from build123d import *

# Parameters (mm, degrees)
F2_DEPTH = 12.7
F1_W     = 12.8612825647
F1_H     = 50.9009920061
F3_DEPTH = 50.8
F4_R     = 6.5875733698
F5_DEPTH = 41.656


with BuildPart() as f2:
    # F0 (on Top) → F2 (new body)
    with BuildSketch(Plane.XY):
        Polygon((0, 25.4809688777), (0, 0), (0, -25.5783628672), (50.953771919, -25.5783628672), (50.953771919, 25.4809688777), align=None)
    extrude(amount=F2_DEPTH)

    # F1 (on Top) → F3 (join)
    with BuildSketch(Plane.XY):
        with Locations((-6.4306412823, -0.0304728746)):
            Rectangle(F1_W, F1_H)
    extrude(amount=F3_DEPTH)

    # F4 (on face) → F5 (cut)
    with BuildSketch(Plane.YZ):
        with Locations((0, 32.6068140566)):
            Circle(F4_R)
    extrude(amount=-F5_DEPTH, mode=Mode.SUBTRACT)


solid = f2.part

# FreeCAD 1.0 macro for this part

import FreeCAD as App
import Part
import Sketcher
from FreeCAD import Vector
Q = App.Units.Quantity


def add_polygon(sketch, points):
    """Adds a closed chain of lines whose ends are joined by coincident constraints."""
    first, n = sketch.GeometryCount, len(points)
    for a, b in zip(points, points[1:] + points[:1]):
        sketch.addGeometry(Part.LineSegment(App.Vector(*a, 0), App.Vector(*b, 0)), False)
    for i in range(n):
        sketch.addConstraint(Sketcher.Constraint("Coincident", first + i, 2, first + (i + 1) % n, 1))

doc = App.newDocument("Part")
body = doc.addObject("PartDesign::Body", "Body")

sketch1 = body.newObject("Sketcher::SketchObject", "Sketch")
sketch1.AttachmentSupport = (doc.getObject("XY_Plane"), [""])
sketch1.MapMode = "FlatFace"
add_polygon(sketch1, [(0, 25.480969), (0, -25.578363), (50.953772, -25.578363), (50.953772, 25.480969)])
sketch1.addConstraint(Sketcher.Constraint("Vertical", 0))
sketch1.addConstraint(Sketcher.Constraint("Horizontal", 1))
sketch1.addConstraint(Sketcher.Constraint("Vertical", 2))
sketch1.addConstraint(Sketcher.Constraint("Horizontal", 3))
sketch1.addConstraint(Sketcher.Constraint("PointOnObject", 0, 2, -2))
sketch1.addConstraint(Sketcher.Constraint("DistanceX", 1, 1, 1, 2, 50.953772))
sketch1.addConstraint(Sketcher.Constraint("DistanceY", 0, 2, 0, 1, 51.059332))
sketch1.addConstraint(Sketcher.Constraint("DistanceY", -1, 1, 2, 2, 25.480969))
pad1 = body.newObject("PartDesign::Pad", "Pad")
pad1.Profile = sketch1
pad1.Length = Q("0.5 in")

sketch2 = body.newObject("Sketcher::SketchObject", "Sketch001")
sketch2.AttachmentSupport = (doc.getObject("XY_Plane"), [""])
sketch2.MapMode = "FlatFace"
add_polygon(sketch2, [(-12.861283, 25.420023), (-12.861283, -25.480969), (0, -25.480969), (0, 25.420023)])
sketch2.addConstraint(Sketcher.Constraint("Vertical", 0))
sketch2.addConstraint(Sketcher.Constraint("Horizontal", 1))
sketch2.addConstraint(Sketcher.Constraint("Vertical", 2))
sketch2.addConstraint(Sketcher.Constraint("Horizontal", 3))
sketch2.addConstraint(Sketcher.Constraint("PointOnObject", 1, 2, -2))
sketch2.addConstraint(Sketcher.Constraint("DistanceX", 1, 1, 1, 2, 12.861283))
sketch2.addConstraint(Sketcher.Constraint("DistanceY", 0, 2, 0, 1, 50.900992))
sketch2.addConstraint(Sketcher.Constraint("DistanceY", 0, 2, -1, 1, 25.480969))
pad2 = body.newObject("PartDesign::Pad", "Pad001")
pad2.Profile = sketch2
pad2.Length = Q("2 in")

sketch3 = body.newObject("Sketcher::SketchObject", "Sketch002")
sketch3.AttachmentSupport = (doc.getObject("YZ_Plane"), [""])
sketch3.MapMode = "FlatFace"
sketch3.addGeometry(Part.Circle(Vector(0, 32.606814, 0), Vector(0, 0, 1), 6.587573), False)
sketch3.addConstraint(Sketcher.Constraint("PointOnObject", 0, 3, -2))
sketch3.addConstraint(Sketcher.Constraint("Diameter", 0, 13.175147))
sketch3.addConstraint(Sketcher.Constraint("DistanceY", -1, 1, 0, 3, 32.606814))
pocket1 = body.newObject("PartDesign::Pocket", "Pocket")
pocket1.Profile = sketch3
pocket1.Length = Q("1.64 in")

doc.recompute()
